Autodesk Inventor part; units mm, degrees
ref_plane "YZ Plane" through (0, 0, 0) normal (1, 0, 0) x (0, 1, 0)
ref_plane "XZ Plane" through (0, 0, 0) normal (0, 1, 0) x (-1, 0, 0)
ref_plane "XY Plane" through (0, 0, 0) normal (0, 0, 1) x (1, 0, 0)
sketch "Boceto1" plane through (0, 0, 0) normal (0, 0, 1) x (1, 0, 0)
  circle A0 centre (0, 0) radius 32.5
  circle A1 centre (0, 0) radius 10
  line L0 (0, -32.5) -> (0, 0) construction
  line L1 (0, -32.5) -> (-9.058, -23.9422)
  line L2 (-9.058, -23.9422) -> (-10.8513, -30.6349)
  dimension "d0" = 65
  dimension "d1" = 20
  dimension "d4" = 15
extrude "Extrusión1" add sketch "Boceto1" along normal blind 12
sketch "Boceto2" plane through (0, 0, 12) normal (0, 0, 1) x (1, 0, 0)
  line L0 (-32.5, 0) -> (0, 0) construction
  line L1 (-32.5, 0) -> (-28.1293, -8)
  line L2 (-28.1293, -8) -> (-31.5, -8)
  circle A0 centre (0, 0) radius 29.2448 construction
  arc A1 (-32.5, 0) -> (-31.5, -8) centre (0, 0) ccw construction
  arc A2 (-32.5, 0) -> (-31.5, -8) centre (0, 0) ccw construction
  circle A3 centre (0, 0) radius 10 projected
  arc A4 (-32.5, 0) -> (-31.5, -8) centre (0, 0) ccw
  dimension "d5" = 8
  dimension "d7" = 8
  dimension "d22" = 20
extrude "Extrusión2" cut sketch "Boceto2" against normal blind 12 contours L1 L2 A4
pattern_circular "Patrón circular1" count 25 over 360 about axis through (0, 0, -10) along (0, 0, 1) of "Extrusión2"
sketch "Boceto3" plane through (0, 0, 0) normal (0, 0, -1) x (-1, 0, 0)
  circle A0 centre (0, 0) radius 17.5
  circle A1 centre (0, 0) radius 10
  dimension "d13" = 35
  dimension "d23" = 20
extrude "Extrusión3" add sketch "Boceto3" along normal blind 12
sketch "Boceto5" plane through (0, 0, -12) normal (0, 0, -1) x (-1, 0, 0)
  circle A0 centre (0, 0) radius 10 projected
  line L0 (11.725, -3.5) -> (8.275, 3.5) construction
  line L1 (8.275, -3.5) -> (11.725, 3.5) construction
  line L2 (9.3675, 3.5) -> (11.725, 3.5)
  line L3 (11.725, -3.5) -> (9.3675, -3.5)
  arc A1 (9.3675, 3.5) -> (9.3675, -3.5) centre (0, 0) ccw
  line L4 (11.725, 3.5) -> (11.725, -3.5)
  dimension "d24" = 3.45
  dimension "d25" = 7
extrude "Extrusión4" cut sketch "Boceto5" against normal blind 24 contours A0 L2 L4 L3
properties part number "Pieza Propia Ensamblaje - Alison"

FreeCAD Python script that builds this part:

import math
import FreeCAD as App
import Part
import Sketcher
Q = App.Units.Quantity

doc = App.newDocument("Part")
body = doc.addObject("PartDesign::Body", "Body")

# Sketch on XY plane
sketch1 = body.newObject("Sketcher::SketchObject", "Sketch")
sketch1.AttachmentSupport = (doc.getObject("XY_Plane"), [""])
sketch1.MapMode = "FlatFace"
sketch1.addGeometry([
    Part.Circle(App.Vector(0, 0, 0), App.Vector(0, 0, 1), 32),
    Part.Circle(App.Vector(0, 0, 0), App.Vector(0, 0, 1), 10),
], False)
sketch1.addConstraint([
    Sketcher.Constraint("Coincident", 0, 3, -1, 1),
    Sketcher.Constraint("Coincident", 1, 3, -1, 1),
    Sketcher.Constraint("Diameter", 0, 65.0),
    Sketcher.Constraint("Diameter", 1, 20.0),
])
pad1 = body.newObject("PartDesign::Pad", "Pad")
pad1.Profile = sketch1
pad1.Length = 12

# Sketch on XY plane
sketch2 = body.newObject("Sketcher::SketchObject", "Sketch001")
sketch2.AttachmentSupport = (doc.getObject("XY_Plane"), [""])
sketch2.MapMode = "FlatFace"
sketch2.AttachmentOffset = App.Placement(App.Vector(0, 0, 12), App.Rotation())
sketch2.addGeometry([
    Part.LineSegment(App.Vector(-28.1, -8, 0), App.Vector(-32.5, 0, 0)),
    Part.ArcOfCircle(Part.Circle(App.Vector(0, 0, 0), App.Vector(0, 0, 1), 32.5), math.radians(180), math.radians(194.25)),
    Part.LineSegment(App.Vector(-31.5, -8, 0), App.Vector(-28.1, -8, 0)),
], False)
sketch2.addConstraint([
    Sketcher.Constraint("Coincident", 0, 2, 1, 1),
    Sketcher.Constraint("Coincident", 1, 2, 2, 1),
    Sketcher.Constraint("Coincident", 2, 2, 0, 1),
    Sketcher.Constraint("Horizontal", 2),
    Sketcher.Constraint("Coincident", 1, 3, -1, 1),
    Sketcher.Constraint("PointOnObject", 0, 2, -1),
    Sketcher.Constraint("DistanceY", 1, 2, -1, 1, 8.0),
    Sketcher.Constraint("Radius", 1, 32.5),
    Sketcher.Constraint("Angle", 0, Q("118.6494 deg")),
])
pocket1 = body.newObject("PartDesign::Pocket", "Pocket")
pocket1.Profile = sketch2
pocket1.Length = 12
doc.recompute()

polarpattern = body.newObject("PartDesign::PolarPattern", "PolarPattern")
polarpattern.Originals = [pocket1]
polarpattern.Axis = (doc.getObject("Z_Axis"), [""])
polarpattern.Angle = 360
polarpattern.Occurrences = 25
body.Tip = polarpattern

# Sketch on XY plane
sketch3 = body.newObject("Sketcher::SketchObject", "Sketch002")
sketch3.AttachmentSupport = (doc.getObject("XY_Plane"), [""])
sketch3.MapMode = "FlatFace"
sketch3.addGeometry([
    Part.Circle(App.Vector(0, 0, 0), App.Vector(0, 0, 1), 18),
    Part.Circle(App.Vector(0, 0, 0), App.Vector(0, 0, 1), 10),
], False)
sketch3.addConstraint([
    Sketcher.Constraint("Coincident", 0, 3, -1, 1),
    Sketcher.Constraint("Coincident", 1, 3, -1, 1),
    Sketcher.Constraint("Diameter", 0, 35.0),
    Sketcher.Constraint("Diameter", 1, 20.0),
])
pad2 = body.newObject("PartDesign::Pad", "Pad001")
pad2.Profile = sketch3
pad2.Length = 12
pad2.Reversed = True

# Sketch on XY plane
sketch4 = body.newObject("Sketcher::SketchObject", "Sketch003")
sketch4.AttachmentSupport = (doc.getObject("XY_Plane"), [""])
sketch4.MapMode = "FlatFace"
sketch4.AttachmentOffset = App.Placement(App.Vector(0, 0, -12), App.Rotation())
sketch4.addGeometry([
    Part.ArcOfCircle(Part.Circle(App.Vector(0, 0, 0), App.Vector(0, 0, 1), 10), math.radians(160), math.radians(200)),
    Part.LineSegment(App.Vector(-9.4, -3.5, 0), App.Vector(-11.7, -3.5, 0)),
    Part.LineSegment(App.Vector(-11.7, -3.5, 0), App.Vector(-11.7, 3.5, 0)),
    Part.LineSegment(App.Vector(-11.7, 3.5, 0), App.Vector(-9.4, 3.5, 0)),
], False)
sketch4.addConstraint([
    Sketcher.Constraint("Coincident", 0, 2, 1, 1),
    Sketcher.Constraint("Coincident", 1, 2, 2, 1),
    Sketcher.Constraint("Coincident", 2, 2, 3, 1),
    Sketcher.Constraint("Coincident", 3, 2, 0, 1),
    Sketcher.Constraint("Horizontal", 1),
    Sketcher.Constraint("Vertical", 2),
    Sketcher.Constraint("Horizontal", 3),
    Sketcher.Constraint("Coincident", 0, 3, -1, 1),
    Sketcher.Constraint("Vertical", 0, 2, 3, 2),
    Sketcher.Constraint("DistanceY", 2, 1, 2, 2, 7.0),
    Sketcher.Constraint("Radius", 0, 10.0),
    Sketcher.Constraint("DistanceX", 1, 2, 1, 1, 2.3575),
])
pocket2 = body.newObject("PartDesign::Pocket", "Pocket001")
pocket2.Profile = sketch4
pocket2.Length = 24
pocket2.Reversed = True

doc.recompute()
